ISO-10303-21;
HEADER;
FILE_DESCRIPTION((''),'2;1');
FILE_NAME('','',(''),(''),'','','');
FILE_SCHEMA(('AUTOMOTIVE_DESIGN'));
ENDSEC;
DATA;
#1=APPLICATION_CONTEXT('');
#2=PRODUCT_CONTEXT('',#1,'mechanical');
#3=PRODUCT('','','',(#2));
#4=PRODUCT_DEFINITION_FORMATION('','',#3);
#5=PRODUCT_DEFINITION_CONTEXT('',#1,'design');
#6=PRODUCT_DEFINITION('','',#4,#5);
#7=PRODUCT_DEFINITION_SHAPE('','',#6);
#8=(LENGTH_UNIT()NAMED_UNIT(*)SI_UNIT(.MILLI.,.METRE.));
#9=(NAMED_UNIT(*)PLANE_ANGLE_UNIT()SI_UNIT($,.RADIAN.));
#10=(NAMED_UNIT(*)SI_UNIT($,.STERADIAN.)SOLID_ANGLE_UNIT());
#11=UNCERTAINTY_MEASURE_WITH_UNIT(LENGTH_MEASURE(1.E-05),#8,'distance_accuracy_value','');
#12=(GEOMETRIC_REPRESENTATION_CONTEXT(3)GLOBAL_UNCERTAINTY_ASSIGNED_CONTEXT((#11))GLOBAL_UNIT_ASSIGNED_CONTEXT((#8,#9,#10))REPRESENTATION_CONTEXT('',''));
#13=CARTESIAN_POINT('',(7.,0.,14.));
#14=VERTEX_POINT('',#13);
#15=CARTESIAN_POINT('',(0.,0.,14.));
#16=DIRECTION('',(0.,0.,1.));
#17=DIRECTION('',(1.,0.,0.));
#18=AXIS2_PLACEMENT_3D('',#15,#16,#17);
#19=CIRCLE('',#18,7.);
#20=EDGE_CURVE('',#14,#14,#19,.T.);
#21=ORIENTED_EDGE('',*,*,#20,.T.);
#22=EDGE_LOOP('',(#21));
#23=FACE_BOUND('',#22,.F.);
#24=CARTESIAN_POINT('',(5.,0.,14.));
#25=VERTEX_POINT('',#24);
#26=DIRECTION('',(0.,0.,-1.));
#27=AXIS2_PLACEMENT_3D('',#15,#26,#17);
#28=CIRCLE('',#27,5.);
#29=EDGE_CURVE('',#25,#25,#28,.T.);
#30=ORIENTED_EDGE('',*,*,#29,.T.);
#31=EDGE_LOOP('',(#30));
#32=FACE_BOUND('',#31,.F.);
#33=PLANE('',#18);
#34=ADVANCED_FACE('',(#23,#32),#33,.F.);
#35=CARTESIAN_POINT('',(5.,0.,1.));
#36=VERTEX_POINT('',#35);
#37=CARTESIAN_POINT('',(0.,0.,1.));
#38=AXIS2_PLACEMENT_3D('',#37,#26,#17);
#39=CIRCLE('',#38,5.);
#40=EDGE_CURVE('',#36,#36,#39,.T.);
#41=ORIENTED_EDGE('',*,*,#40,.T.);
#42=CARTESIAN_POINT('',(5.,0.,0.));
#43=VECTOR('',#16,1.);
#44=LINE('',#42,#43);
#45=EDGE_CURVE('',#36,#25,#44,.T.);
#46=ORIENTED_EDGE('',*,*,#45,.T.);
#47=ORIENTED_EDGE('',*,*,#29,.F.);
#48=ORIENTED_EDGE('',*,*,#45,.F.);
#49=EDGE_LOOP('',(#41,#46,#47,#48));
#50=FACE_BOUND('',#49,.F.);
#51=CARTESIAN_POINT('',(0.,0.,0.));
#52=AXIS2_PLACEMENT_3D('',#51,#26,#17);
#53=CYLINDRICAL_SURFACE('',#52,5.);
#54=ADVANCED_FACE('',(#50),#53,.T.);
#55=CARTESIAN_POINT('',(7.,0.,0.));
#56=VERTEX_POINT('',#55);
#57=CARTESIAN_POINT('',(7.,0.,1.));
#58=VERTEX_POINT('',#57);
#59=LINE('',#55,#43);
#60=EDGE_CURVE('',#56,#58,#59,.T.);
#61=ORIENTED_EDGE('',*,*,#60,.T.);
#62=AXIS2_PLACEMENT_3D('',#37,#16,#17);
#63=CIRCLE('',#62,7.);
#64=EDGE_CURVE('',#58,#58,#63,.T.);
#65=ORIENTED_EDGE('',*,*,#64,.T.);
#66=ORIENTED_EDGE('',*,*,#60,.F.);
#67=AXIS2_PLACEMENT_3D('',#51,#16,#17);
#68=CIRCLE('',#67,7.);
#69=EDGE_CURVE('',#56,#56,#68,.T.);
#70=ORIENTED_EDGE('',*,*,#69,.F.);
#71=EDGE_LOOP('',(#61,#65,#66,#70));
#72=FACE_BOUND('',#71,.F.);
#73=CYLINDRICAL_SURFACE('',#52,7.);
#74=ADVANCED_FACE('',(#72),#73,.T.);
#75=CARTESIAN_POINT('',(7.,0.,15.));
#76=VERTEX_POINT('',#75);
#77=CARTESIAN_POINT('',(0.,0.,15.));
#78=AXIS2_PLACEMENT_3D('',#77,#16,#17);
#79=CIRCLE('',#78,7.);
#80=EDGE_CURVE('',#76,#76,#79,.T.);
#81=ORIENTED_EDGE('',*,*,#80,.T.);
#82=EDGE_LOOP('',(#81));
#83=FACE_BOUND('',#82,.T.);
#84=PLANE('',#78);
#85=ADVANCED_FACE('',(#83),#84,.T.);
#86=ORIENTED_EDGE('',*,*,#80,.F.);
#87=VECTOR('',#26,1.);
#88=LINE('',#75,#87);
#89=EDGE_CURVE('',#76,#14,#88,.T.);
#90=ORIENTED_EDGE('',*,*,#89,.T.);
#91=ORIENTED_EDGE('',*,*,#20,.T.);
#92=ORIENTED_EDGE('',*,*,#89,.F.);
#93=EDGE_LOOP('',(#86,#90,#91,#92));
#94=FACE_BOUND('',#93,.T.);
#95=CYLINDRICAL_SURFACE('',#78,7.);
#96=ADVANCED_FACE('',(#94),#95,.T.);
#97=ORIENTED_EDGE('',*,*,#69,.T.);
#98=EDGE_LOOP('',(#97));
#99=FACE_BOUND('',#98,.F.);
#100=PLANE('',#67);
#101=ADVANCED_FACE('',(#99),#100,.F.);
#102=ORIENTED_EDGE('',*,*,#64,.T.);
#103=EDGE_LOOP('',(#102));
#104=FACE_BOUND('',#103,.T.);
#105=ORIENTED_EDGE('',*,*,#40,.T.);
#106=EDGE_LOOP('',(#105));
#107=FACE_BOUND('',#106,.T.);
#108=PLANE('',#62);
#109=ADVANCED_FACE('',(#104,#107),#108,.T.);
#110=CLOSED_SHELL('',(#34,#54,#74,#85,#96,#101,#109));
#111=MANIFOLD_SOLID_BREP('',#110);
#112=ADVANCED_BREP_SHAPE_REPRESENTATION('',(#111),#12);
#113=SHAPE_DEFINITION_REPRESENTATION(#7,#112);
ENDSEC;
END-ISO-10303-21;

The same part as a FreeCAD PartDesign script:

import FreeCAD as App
import Part
import Sketcher

doc = App.newDocument("Part")
body = doc.addObject("PartDesign::Body", "Body")

sketch1 = body.newObject("Sketcher::SketchObject", "Sketch")
sketch1.AttachmentSupport = (doc.getObject("XY_Plane"), [""])
sketch1.MapMode = "FlatFace"
sketch1.addGeometry(Part.Circle(App.Vector(0, 0, 0), App.Vector(0, 0, 1), 5), False)
sketch1.addConstraint(Sketcher.Constraint("Coincident", 0, 3, -1, 1))
sketch1.addConstraint(Sketcher.Constraint("Diameter", 0, 10.0))
pad1 = body.newObject("PartDesign::Pad", "Pad")
pad1.Profile = sketch1
pad1.Length = 15

sketch2 = body.newObject("Sketcher::SketchObject", "Sketch001")
sketch2.AttachmentSupport = (doc.getObject("XY_Plane"), [""])
sketch2.MapMode = "FlatFace"
sketch2.addGeometry(Part.Circle(App.Vector(0, 0, 0), App.Vector(0, 0, 1), 7), False)
sketch2.addGeometry(Part.Circle(App.Vector(0, 0, 0), App.Vector(0, 0, 1), 2.8), False)
sketch2.addConstraint(Sketcher.Constraint("Coincident", 0, 3, -1, 1))
sketch2.addConstraint(Sketcher.Constraint("Coincident", 1, 3, -1, 1))
sketch2.addConstraint(Sketcher.Constraint("Diameter", 0, 14.0))
sketch2.addConstraint(Sketcher.Constraint("Diameter", 1, 5.5))
pad2 = body.newObject("PartDesign::Pad", "Pad001")
pad2.Profile = sketch2
pad2.Length = 1

sketch3 = body.newObject("Sketcher::SketchObject", "Sketch002")
sketch3.AttachmentSupport = (doc.getObject("XY_Plane"), [""])
sketch3.MapMode = "FlatFace"
sketch3.AttachmentOffset = App.Placement(App.Vector(0, 0, 15), App.Rotation())
sketch3.addGeometry(Part.Circle(App.Vector(0, 0, 0), App.Vector(0, 0, 1), 7), False)
sketch3.addConstraint(Sketcher.Constraint("Coincident", 0, 3, -1, 1))
sketch3.addConstraint(Sketcher.Constraint("Diameter", 0, 14.0))
pad3 = body.newObject("PartDesign::Pad", "Pad002")
pad3.Profile = sketch3
pad3.Length = 1
pad3.Reversed = True

doc.recompute()
